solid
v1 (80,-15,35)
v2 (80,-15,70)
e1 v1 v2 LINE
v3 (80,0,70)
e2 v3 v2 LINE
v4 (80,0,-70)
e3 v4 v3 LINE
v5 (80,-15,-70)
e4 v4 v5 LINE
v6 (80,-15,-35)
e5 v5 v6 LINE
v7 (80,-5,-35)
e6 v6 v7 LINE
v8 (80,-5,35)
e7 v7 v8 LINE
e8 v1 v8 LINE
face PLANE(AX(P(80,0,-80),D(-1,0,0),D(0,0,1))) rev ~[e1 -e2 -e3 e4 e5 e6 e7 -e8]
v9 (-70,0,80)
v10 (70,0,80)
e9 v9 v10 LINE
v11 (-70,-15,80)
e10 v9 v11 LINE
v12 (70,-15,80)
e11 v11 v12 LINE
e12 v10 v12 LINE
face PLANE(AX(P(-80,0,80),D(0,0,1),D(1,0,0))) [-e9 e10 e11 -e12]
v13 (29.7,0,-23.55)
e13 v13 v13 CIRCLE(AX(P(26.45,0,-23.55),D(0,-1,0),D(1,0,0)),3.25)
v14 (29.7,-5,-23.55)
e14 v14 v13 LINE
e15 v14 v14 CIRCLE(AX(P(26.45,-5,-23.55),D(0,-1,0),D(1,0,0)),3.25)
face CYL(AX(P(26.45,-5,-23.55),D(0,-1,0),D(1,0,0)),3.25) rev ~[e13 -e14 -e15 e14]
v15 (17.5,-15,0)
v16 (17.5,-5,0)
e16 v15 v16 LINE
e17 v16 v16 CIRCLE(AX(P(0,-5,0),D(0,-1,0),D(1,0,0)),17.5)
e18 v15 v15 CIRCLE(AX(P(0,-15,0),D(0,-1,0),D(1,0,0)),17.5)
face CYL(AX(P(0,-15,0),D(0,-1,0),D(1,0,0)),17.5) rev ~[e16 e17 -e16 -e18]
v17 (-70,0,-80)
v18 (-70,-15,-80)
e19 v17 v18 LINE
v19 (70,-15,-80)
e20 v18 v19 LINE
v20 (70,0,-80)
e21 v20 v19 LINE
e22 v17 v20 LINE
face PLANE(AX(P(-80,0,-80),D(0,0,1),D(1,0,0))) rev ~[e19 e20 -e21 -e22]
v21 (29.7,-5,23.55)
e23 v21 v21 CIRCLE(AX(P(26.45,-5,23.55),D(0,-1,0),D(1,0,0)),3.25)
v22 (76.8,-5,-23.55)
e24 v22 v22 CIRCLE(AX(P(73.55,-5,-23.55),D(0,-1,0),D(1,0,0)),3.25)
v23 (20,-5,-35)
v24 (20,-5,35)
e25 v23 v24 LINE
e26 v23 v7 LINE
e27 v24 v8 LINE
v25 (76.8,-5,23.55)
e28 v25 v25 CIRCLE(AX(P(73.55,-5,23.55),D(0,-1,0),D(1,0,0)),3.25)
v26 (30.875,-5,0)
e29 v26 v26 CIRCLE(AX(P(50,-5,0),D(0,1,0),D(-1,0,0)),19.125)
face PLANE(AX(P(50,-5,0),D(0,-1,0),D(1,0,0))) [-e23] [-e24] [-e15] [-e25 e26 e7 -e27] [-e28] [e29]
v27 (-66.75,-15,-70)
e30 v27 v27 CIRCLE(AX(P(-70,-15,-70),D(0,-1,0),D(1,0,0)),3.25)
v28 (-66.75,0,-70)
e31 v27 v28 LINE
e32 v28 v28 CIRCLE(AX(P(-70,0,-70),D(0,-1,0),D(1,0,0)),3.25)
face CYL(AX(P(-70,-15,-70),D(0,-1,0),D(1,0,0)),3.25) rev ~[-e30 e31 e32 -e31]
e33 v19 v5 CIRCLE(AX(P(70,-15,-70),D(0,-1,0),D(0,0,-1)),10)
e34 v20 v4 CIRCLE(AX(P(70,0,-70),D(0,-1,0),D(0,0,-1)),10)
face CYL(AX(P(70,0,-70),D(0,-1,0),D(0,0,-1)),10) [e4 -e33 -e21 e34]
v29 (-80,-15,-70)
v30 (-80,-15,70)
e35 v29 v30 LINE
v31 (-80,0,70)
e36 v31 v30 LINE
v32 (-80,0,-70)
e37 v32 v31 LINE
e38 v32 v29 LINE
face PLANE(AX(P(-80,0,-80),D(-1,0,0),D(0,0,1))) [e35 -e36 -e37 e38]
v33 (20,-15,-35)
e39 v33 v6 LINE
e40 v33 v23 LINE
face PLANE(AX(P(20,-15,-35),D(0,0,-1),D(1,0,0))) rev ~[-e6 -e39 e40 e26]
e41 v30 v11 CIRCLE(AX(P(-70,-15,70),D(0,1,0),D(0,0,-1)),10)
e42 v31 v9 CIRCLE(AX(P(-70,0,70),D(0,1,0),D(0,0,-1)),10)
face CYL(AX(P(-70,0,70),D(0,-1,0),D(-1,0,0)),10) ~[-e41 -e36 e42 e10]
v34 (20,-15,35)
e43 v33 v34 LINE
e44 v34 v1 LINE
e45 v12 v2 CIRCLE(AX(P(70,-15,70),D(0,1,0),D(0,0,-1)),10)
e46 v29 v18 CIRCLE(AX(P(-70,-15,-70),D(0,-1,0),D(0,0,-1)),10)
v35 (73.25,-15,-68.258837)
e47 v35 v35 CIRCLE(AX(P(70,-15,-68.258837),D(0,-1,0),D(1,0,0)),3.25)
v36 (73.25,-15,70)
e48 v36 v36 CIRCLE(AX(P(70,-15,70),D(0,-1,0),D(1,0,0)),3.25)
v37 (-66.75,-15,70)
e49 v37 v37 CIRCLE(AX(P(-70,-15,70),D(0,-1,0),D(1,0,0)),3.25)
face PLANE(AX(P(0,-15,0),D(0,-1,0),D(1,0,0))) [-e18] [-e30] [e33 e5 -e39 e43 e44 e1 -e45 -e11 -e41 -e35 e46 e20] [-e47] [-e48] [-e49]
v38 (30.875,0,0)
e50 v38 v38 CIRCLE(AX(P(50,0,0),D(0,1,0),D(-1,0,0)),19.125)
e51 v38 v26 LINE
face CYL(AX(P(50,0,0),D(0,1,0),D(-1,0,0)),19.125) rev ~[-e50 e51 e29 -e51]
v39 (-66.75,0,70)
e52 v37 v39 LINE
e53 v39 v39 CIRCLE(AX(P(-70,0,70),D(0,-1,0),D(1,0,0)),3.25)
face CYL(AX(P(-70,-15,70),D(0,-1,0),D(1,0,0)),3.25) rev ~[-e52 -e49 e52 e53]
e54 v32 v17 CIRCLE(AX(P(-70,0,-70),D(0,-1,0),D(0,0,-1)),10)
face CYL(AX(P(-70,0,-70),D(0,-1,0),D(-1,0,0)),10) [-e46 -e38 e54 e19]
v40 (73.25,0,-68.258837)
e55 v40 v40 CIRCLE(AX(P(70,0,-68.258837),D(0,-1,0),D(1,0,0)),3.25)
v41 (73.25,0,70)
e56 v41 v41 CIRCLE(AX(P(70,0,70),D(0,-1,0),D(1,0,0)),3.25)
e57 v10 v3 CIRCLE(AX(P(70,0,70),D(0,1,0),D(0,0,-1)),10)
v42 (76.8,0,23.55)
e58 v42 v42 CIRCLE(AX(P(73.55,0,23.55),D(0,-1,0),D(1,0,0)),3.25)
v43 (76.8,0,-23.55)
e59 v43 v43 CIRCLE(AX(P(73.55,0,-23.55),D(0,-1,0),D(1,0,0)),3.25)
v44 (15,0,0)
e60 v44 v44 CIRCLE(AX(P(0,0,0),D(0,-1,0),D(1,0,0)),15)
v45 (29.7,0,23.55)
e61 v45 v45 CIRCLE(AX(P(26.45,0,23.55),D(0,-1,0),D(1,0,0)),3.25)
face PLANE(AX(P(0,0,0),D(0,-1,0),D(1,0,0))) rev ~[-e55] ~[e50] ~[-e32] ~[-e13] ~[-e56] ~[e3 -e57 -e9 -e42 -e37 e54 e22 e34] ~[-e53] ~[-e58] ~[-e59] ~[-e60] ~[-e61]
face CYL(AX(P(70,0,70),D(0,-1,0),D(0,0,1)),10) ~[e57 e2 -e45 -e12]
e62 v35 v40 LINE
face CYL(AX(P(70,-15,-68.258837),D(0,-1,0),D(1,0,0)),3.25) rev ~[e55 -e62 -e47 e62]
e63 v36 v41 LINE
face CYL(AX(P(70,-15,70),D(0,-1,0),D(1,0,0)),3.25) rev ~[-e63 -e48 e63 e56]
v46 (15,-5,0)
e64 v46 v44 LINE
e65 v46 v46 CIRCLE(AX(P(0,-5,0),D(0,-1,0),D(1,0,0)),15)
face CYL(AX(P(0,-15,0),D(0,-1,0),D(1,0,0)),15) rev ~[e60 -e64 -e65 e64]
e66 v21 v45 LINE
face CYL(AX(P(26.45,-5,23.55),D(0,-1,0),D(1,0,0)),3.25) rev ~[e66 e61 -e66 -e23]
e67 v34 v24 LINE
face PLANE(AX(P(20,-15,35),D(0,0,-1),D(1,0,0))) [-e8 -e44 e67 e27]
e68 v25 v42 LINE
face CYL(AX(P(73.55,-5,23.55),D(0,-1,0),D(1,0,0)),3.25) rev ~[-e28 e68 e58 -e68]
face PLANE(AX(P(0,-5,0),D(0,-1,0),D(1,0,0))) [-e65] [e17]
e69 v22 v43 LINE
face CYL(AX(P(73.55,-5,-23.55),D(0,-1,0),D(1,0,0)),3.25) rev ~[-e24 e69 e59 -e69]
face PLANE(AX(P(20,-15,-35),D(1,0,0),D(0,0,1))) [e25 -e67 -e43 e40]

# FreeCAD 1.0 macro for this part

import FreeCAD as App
import Part
import Sketcher
from FreeCAD import Vector


def edges_at(feature, points):
    """Names of the edges that pass closest to the given points."""
    edges = feature.Shape.Edges
    near = lambda p: min(range(len(edges)), key=lambda i: edges[i].distToShape(Part.Vertex(*p))[0])
    return sorted({f"Edge{near(p) + 1}" for p in points})


def add_polygon(sketch, points):
    """Adds a closed chain of lines whose ends are joined by coincident constraints."""
    first, n = sketch.GeometryCount, len(points)
    for a, b in zip(points, points[1:] + points[:1]):
        sketch.addGeometry(Part.LineSegment(App.Vector(*a, 0), App.Vector(*b, 0)), False)
    for i in range(n):
        sketch.addConstraint(Sketcher.Constraint("Coincident", first + i, 2, first + (i + 1) % n, 1))

doc = App.newDocument("Part")
params = doc.addObject("Spreadsheet::Sheet", "Params")
for row, (alias, value) in enumerate([
    ("sketch1_width", "160 mm"),
    ("pad1_length", "15 mm"),
    ("sketch2_diameter", "30 mm"),
    ("pocket1_length", "25 mm"),
    ("sketch3_diameter", "35 mm"),
    ("pocket2_length", "10 mm"),
    ("fillet_radius", "10 mm"),
    ("sketch4_width", "60 mm"),
    ("sketch4_height", "70 mm"),
    ("pocket3_length", "10 mm"),
    ("sketch5_diameter", "38.25 mm"),
    ("pocket4_length", "25 mm"),
    ("sketch6_diameter", "6.5 mm"),
    ("pocket5_length", "25 mm"),
    ("sketch7_diameter", "6.5 mm"),
    ("pocket6_length", "25 mm"),
], start=1):
    params.set(f"A{row}", alias)
    params.set(f"B{row}", "=" + value)
    params.setAlias(f"B{row}", alias)

body = doc.addObject("PartDesign::Body", "Body")

sketch1 = doc.addObject("Sketcher::SketchObject", "Sketch")
body.addObject(sketch1)
sketch1.AttachmentSupport = (doc.XZ_Plane, [""])
sketch1.MapMode = "FlatFace"
add_polygon(sketch1, [(-80, 80), (-80, -80), (80, -80), (80, 80)])
sketch1.addConstraint([
    Sketcher.Constraint("Vertical", 0),
    Sketcher.Constraint("Horizontal", 1),
    Sketcher.Constraint("Vertical", 2),
    Sketcher.Constraint("Horizontal", 3),
    Sketcher.Constraint("Symmetric", 0, 2, 2, 2, -1, 1),
    Sketcher.Constraint("Equal", 3, 0),
    Sketcher.Constraint("DistanceX", 1, 1, 1, 2, 160.0),
])
sketch1.setExpression("Constraints[10]", "Params.sketch1_width")
pad1 = doc.addObject("PartDesign::Pad", "Pad")
body.addObject(pad1)
pad1.Profile = sketch1
pad1.setExpression("Length", "Params.pad1_length")

sketch2 = doc.addObject("Sketcher::SketchObject", "Sketch001")
body.addObject(sketch2)
sketch2.AttachmentSupport = (doc.XZ_Plane, [""])
sketch2.MapMode = "FlatFace"
sketch2.AttachmentOffset = App.Placement(Vector(0, 0, 15), App.Rotation())
sketch2.addGeometry(Part.Circle(Vector(0, 0, 0), Vector(0, 0, 1), 15), False)
sketch2.addConstraint([
    Sketcher.Constraint("Coincident", 0, 3, -1, 1),
    Sketcher.Constraint("Diameter", 0, 30.0),
])
sketch2.setExpression("Constraints[1]", "Params.sketch2_diameter")
pocket1 = doc.addObject("PartDesign::Pocket", "Pocket")
body.addObject(pocket1)
pocket1.Profile = sketch2
pocket1.setExpression("Length", "Params.pocket1_length")

sketch3 = doc.addObject("Sketcher::SketchObject", "Sketch002")
body.addObject(sketch3)
sketch3.AttachmentSupport = (doc.XZ_Plane, [""])
sketch3.MapMode = "FlatFace"
sketch3.AttachmentOffset = App.Placement(Vector(0, 0, 15), App.Rotation())
sketch3.addGeometry(Part.Circle(Vector(0, 0, 0), Vector(0, 0, 1), 17.5), False)
sketch3.addConstraint([
    Sketcher.Constraint("Coincident", 0, 3, -1, 1),
    Sketcher.Constraint("Diameter", 0, 35.0),
])
sketch3.setExpression("Constraints[1]", "Params.sketch3_diameter")
pocket2 = doc.addObject("PartDesign::Pocket", "Pocket001")
body.addObject(pocket2)
pocket2.Profile = sketch3
pocket2.setExpression("Length", "Params.pocket2_length")
doc.recompute()

fillet = doc.addObject("PartDesign::Fillet", "Fillet")
body.addObject(fillet)
fillet.Base = (pocket2, edges_at(pocket2, [
    (80, -7.5, 80),
    (80, -7.5, -80),
    (-80, -7.5, -80),
    (-80, -7.5, 80),
]))
fillet.setExpression("Radius", "Params.fillet_radius")

sketch4 = doc.addObject("Sketcher::SketchObject", "Sketch003")
body.addObject(sketch4)
sketch4.AttachmentSupport = (doc.XZ_Plane, [""])
sketch4.MapMode = "FlatFace"
sketch4.AttachmentOffset = App.Placement(Vector(0, 0, 15), App.Rotation())
add_polygon(sketch4, [(20, 35), (20, -35), (80, -35), (80, 35)])
sketch4.addConstraint([
    Sketcher.Constraint("Vertical", 0),
    Sketcher.Constraint("Horizontal", 1),
    Sketcher.Constraint("Vertical", 2),
    Sketcher.Constraint("Horizontal", 3),
    Sketcher.Constraint("DistanceX", 1, 1, 1, 2, 60.0),
    Sketcher.Constraint("DistanceY", 0, 2, 0, 1, 70.0),
    Sketcher.Constraint("DistanceX", -1, 1, 0, 2, 20.0),
    Sketcher.Constraint("DistanceY", 0, 2, -1, 1, 35.0),
])
sketch4.setExpression("Constraints[8]", "Params.sketch4_width")
sketch4.setExpression("Constraints[9]", "Params.sketch4_height")
pocket3 = doc.addObject("PartDesign::Pocket", "Pocket002")
body.addObject(pocket3)
pocket3.Profile = sketch4
pocket3.setExpression("Length", "Params.pocket3_length")

sketch5 = doc.addObject("Sketcher::SketchObject", "Sketch004")
body.addObject(sketch5)
sketch5.AttachmentSupport = (doc.XZ_Plane, [""])
sketch5.MapMode = "FlatFace"
sketch5.addGeometry(Part.Circle(Vector(50, 0, 0), Vector(0, 0, 1), 19.125), False)
sketch5.addConstraint([
    Sketcher.Constraint("PointOnObject", 0, 3, -1),
    Sketcher.Constraint("Diameter", 0, 38.25),
    Sketcher.Constraint("DistanceX", -1, 1, 0, 3, 50.0),
])
sketch5.setExpression("Constraints[1]", "Params.sketch5_diameter")
pocket4 = doc.addObject("PartDesign::Pocket", "Pocket003")
body.addObject(pocket4)
pocket4.Profile = sketch5
pocket4.setExpression("Length", "Params.pocket4_length")
pocket4.Reversed = True

sketch6 = doc.addObject("Sketcher::SketchObject", "Sketch005")
body.addObject(sketch6)
sketch6.AttachmentSupport = (doc.XZ_Plane, [""])
sketch6.MapMode = "FlatFace"
sketch6.AttachmentOffset = App.Placement(Vector(0, 0, 5), App.Rotation())
sketch6.addGeometry([
    Part.Circle(Vector(26.45, 23.55, 0), Vector(0, 0, 1), 3.25),
    Part.Circle(Vector(26.45, -23.55, 0), Vector(0, 0, 1), 3.25),
    Part.Circle(Vector(73.55, -23.55, 0), Vector(0, 0, 1), 3.25),
    Part.Circle(Vector(73.55, 23.55, 0), Vector(0, 0, 1), 3.25),
], False)
sketch6.addConstraint([
    Sketcher.Constraint("Equal", 0, 1),
    Sketcher.Constraint("Equal", 1, 2),
    Sketcher.Constraint("Equal", 2, 3),
    Sketcher.Constraint("Symmetric", 0, 3, 1, 3, -1),
    Sketcher.Constraint("Symmetric", 2, 3, 3, 3, -1),
    Sketcher.Constraint("Horizontal", 1, 3, 2, 3),
    Sketcher.Constraint("Diameter", 0, 6.5),
    Sketcher.Constraint("DistanceY", 1, 3, 0, 3, 47.1),
    Sketcher.Constraint("DistanceX", 1, 3, 2, 3, 47.1),
    Sketcher.Constraint("DistanceX", -1, 1, 0, 3, 26.45),
])
sketch6.setExpression("Constraints[6]", "Params.sketch6_diameter")
pocket5 = doc.addObject("PartDesign::Pocket", "Pocket004")
body.addObject(pocket5)
pocket5.Profile = sketch6
pocket5.setExpression("Length", "Params.pocket5_length")

sketch7 = doc.addObject("Sketcher::SketchObject", "Sketch006")
body.addObject(sketch7)
sketch7.AttachmentSupport = (doc.XZ_Plane, [""])
sketch7.MapMode = "FlatFace"
sketch7.AttachmentOffset = App.Placement(Vector(0, 0, 15), App.Rotation())
sketch7.addGeometry([
    Part.Circle(Vector(70, 70, 0), Vector(0, 0, 1), 3.25),
    Part.Circle(Vector(70, -68.258837, 0), Vector(0, 0, 1), 3.25),
    Part.Circle(Vector(-70, -70, 0), Vector(0, 0, 1), 3.25),
    Part.Circle(Vector(-70, 70, 0), Vector(0, 0, 1), 3.25),
], False)
sketch7.addConstraint([
    Sketcher.Constraint("Equal", 0, 1),
    Sketcher.Constraint("Equal", 1, 2),
    Sketcher.Constraint("Equal", 2, 3),
    Sketcher.Constraint("Symmetric", 0, 3, 2, 3, -1, 1),
    Sketcher.Constraint("Symmetric", 0, 3, 3, 3, -2),
    Sketcher.Constraint("Vertical", 0, 3, 1, 3),
    Sketcher.Constraint("Diameter", 0, 6.5),
    Sketcher.Constraint("DistanceX", -1, 1, 0, 3, 70.0),
    Sketcher.Constraint("DistanceY", -1, 1, 0, 3, 70.0),
    Sketcher.Constraint("DistanceY", 1, 3, -1, 1, 68.258837),
])
sketch7.setExpression("Constraints[6]", "Params.sketch7_diameter")
pocket6 = doc.addObject("PartDesign::Pocket", "Pocket005")
body.addObject(pocket6)
pocket6.Profile = sketch7
pocket6.setExpression("Length", "Params.pocket6_length")

doc.recompute()
